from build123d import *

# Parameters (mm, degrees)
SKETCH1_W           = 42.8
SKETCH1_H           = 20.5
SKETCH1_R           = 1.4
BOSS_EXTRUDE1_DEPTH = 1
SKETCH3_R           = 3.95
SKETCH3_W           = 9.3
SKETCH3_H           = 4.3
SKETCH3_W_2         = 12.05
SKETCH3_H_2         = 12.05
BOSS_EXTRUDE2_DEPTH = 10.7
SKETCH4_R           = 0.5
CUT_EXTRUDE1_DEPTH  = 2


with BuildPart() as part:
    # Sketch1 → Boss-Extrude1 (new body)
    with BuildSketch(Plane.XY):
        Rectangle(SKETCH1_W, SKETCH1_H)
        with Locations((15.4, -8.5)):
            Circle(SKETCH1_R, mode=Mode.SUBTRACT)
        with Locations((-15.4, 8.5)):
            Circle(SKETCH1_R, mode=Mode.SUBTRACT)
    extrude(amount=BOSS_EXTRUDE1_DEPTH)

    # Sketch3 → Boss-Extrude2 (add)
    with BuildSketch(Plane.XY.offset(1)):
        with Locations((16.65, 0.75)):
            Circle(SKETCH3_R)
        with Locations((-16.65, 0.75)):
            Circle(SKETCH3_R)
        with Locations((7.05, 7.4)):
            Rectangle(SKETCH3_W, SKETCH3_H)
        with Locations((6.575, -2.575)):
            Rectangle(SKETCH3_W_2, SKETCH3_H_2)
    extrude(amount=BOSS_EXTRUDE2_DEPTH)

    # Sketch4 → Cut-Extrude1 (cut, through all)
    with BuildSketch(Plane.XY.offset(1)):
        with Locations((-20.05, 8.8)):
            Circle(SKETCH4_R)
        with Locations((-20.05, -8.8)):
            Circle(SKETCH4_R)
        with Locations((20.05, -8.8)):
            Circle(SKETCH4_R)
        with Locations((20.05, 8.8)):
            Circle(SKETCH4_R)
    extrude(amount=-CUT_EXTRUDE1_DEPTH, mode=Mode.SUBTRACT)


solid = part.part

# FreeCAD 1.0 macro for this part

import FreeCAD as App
import Part
import Sketcher

V = App.Vector


def add_polygon(sketch, points):
    """Adds a closed chain of lines whose ends are joined by coincident constraints."""
    first, n = sketch.GeometryCount, len(points)
    for a, b in zip(points, points[1:] + points[:1]):
        sketch.addGeometry(Part.LineSegment(App.Vector(*a, 0), App.Vector(*b, 0)), False)
    for i in range(n):
        sketch.addConstraint(Sketcher.Constraint("Coincident", first + i, 2, first + (i + 1) % n, 1))

doc = App.newDocument("Part")
params = doc.addObject("Spreadsheet::Sheet", "Params")
for row, (alias, value) in enumerate([
    ("sketch1_diameter", "2.8 mm"),
    ("sketch1_width", "42.8 mm"),
    ("sketch1_height", "20.5 mm"),
    ("pad1_length", "1 mm"),
    ("sketch2_diameter", "7.9 mm"),
    ("sketch2_width", "9.3 mm"),
    ("sketch2_height", "4.3 mm"),
    ("sketch2_width2", "12.05 mm"),
    ("pad2_length", "10.7 mm"),
    ("sketch3_diameter", "1 mm"),
], start=1):
    params.set(f"A{row}", alias)
    params.set(f"B{row}", "=" + value)
    params.setAlias(f"B{row}", alias)

body = doc.addObject("PartDesign::Body", "Body")

# Sketch on XY plane
sketch1 = doc.addObject("Sketcher::SketchObject", "Sketch")
body.addObject(sketch1)
sketch1.AttachmentSupport = (doc.XY_Plane, [""])
sketch1.MapMode = "FlatFace"
add_polygon(sketch1, [(-21.4, 10.25), (-21.4, -10.25), (21.4, -10.25), (21.4, 10.25)])  # lines 0-3
sketch1.addGeometry(Part.Circle(V(15.4, -8.5, 0), V(0, 0, 1), 1.4), False)  # 4
sketch1.addGeometry(Part.Circle(V(-15.4, 8.5, 0), V(0, 0, 1), 1.4), False)  # 5
sketch1.addConstraint([
    Sketcher.Constraint("Vertical", 0),
    Sketcher.Constraint("Horizontal", 1),
    Sketcher.Constraint("Vertical", 2),
    Sketcher.Constraint("Horizontal", 3),
    Sketcher.Constraint("Equal", 4, 5),
    Sketcher.Constraint("Symmetric", 4, 3, 5, 3, -1, 1),
    Sketcher.Constraint("Symmetric", 0, 2, 2, 2, -1, 1),
    Sketcher.Constraint("Diameter", 4, 2.8),
    Sketcher.Constraint("DistanceX", 1, 1, 1, 2, 42.8),
    Sketcher.Constraint("DistanceY", 0, 2, 0, 1, 20.5),
    Sketcher.Constraint("DistanceY", 4, 3, 5, 3, 17.0),
    Sketcher.Constraint("DistanceX", 0, 2, 5, 3, 6.0),
])
sketch1.setExpression("Constraints[11]", "Params.sketch1_diameter")
sketch1.setExpression("Constraints[12]", "Params.sketch1_width")
sketch1.setExpression("Constraints[13]", "Params.sketch1_height")
pad1 = doc.addObject("PartDesign::Pad", "Pad")
body.addObject(pad1)
pad1.Profile = sketch1
pad1.setExpression("Length", "Params.pad1_length")

# Sketch on XY plane
sketch2 = doc.addObject("Sketcher::SketchObject", "Sketch001")
body.addObject(sketch2)
sketch2.AttachmentSupport = (doc.XY_Plane, [""])
sketch2.MapMode = "FlatFace"
sketch2.AttachmentOffset = App.Placement(V(0, 0, 1), App.Rotation())
sketch2.addGeometry(Part.Circle(V(16.65, 0.75, 0), V(0, 0, 1), 3.95), False)  # 0
sketch2.addGeometry(Part.Circle(V(-16.65, 0.75, 0), V(0, 0, 1), 3.95), False)  # 1
add_polygon(sketch2, [(2.4, 9.55), (2.4, 5.25), (11.7, 5.25), (11.7, 9.55)])  # lines 2-5
add_polygon(sketch2, [(0.55, 3.45), (0.55, -8.6), (12.6, -8.6), (12.6, 3.45)])  # lines 6-9
sketch2.addConstraint([
    Sketcher.Constraint("Vertical", 2),
    Sketcher.Constraint("Horizontal", 3),
    Sketcher.Constraint("Vertical", 4),
    Sketcher.Constraint("Horizontal", 5),
    Sketcher.Constraint("Vertical", 6),
    Sketcher.Constraint("Horizontal", 7),
    Sketcher.Constraint("Vertical", 8),
    Sketcher.Constraint("Horizontal", 9),
    Sketcher.Constraint("Equal", 0, 1),
    Sketcher.Constraint("Symmetric", 0, 3, 1, 3, -2),
    Sketcher.Constraint("Equal", 9, 6),
    Sketcher.Constraint("Diameter", 0, 7.9),
    Sketcher.Constraint("DistanceX", 3, 1, 3, 2, 9.3),
    Sketcher.Constraint("DistanceY", 2, 2, 2, 1, 4.3),
    Sketcher.Constraint("DistanceX", 7, 1, 7, 2, 12.05),
    Sketcher.Constraint("DistanceX", -1, 1, 2, 2, 2.4),
    Sketcher.Constraint("DistanceY", 6, 2, -1, 1, 8.6),
    Sketcher.Constraint("DistanceX", -1, 1, 7, 2, 12.6),
    Sketcher.Constraint("DistanceX", 1, 3, 0, 3, 33.3),
    Sketcher.Constraint("DistanceY", 0, 3, 2, 2, 4.5),
    Sketcher.Constraint("DistanceY", 8, 2, 3, 2, 1.8),
])
sketch2.setExpression("Constraints[19]", "Params.sketch2_diameter")
sketch2.setExpression("Constraints[20]", "Params.sketch2_width")
sketch2.setExpression("Constraints[21]", "Params.sketch2_height")
sketch2.setExpression("Constraints[22]", "Params.sketch2_width2")
pad2 = doc.addObject("PartDesign::Pad", "Pad001")
body.addObject(pad2)
pad2.Profile = sketch2
pad2.setExpression("Length", "Params.pad2_length")

# Sketch on XY plane
sketch3 = doc.addObject("Sketcher::SketchObject", "Sketch002")
body.addObject(sketch3)
sketch3.AttachmentSupport = (doc.XY_Plane, [""])
sketch3.MapMode = "FlatFace"
sketch3.AttachmentOffset = App.Placement(V(0, 0, 1), App.Rotation())
sketch3.addGeometry([
    Part.Circle(V(-20.05, 8.8, 0), V(0, 0, 1), 0.5),
    Part.Circle(V(-20.05, -8.8, 0), V(0, 0, 1), 0.5),
    Part.Circle(V(20.05, -8.8, 0), V(0, 0, 1), 0.5),
    Part.Circle(V(20.05, 8.8, 0), V(0, 0, 1), 0.5),
], False)
sketch3.addConstraint([
    Sketcher.Constraint("Equal", 0, 1),
    Sketcher.Constraint("Equal", 1, 2),
    Sketcher.Constraint("Equal", 2, 3),
    Sketcher.Constraint("Symmetric", 0, 3, 2, 3, -1, 1),
    Sketcher.Constraint("Symmetric", 1, 3, 3, 3, -1, 1),
    Sketcher.Constraint("Symmetric", 1, 3, 2, 3, -2),
    Sketcher.Constraint("Diameter", 0, 1.0),
    Sketcher.Constraint("DistanceY", -1, 1, 0, 3, 8.8),
    Sketcher.Constraint("DistanceX", 1, 3, 2, 3, 40.1),
])
sketch3.setExpression("Constraints[6]", "Params.sketch3_diameter")
pocket1 = doc.addObject("PartDesign::Pocket", "Pocket")
body.addObject(pocket1)
pocket1.Profile = sketch3
pocket1.Type = "ThroughAll"

doc.recompute()
